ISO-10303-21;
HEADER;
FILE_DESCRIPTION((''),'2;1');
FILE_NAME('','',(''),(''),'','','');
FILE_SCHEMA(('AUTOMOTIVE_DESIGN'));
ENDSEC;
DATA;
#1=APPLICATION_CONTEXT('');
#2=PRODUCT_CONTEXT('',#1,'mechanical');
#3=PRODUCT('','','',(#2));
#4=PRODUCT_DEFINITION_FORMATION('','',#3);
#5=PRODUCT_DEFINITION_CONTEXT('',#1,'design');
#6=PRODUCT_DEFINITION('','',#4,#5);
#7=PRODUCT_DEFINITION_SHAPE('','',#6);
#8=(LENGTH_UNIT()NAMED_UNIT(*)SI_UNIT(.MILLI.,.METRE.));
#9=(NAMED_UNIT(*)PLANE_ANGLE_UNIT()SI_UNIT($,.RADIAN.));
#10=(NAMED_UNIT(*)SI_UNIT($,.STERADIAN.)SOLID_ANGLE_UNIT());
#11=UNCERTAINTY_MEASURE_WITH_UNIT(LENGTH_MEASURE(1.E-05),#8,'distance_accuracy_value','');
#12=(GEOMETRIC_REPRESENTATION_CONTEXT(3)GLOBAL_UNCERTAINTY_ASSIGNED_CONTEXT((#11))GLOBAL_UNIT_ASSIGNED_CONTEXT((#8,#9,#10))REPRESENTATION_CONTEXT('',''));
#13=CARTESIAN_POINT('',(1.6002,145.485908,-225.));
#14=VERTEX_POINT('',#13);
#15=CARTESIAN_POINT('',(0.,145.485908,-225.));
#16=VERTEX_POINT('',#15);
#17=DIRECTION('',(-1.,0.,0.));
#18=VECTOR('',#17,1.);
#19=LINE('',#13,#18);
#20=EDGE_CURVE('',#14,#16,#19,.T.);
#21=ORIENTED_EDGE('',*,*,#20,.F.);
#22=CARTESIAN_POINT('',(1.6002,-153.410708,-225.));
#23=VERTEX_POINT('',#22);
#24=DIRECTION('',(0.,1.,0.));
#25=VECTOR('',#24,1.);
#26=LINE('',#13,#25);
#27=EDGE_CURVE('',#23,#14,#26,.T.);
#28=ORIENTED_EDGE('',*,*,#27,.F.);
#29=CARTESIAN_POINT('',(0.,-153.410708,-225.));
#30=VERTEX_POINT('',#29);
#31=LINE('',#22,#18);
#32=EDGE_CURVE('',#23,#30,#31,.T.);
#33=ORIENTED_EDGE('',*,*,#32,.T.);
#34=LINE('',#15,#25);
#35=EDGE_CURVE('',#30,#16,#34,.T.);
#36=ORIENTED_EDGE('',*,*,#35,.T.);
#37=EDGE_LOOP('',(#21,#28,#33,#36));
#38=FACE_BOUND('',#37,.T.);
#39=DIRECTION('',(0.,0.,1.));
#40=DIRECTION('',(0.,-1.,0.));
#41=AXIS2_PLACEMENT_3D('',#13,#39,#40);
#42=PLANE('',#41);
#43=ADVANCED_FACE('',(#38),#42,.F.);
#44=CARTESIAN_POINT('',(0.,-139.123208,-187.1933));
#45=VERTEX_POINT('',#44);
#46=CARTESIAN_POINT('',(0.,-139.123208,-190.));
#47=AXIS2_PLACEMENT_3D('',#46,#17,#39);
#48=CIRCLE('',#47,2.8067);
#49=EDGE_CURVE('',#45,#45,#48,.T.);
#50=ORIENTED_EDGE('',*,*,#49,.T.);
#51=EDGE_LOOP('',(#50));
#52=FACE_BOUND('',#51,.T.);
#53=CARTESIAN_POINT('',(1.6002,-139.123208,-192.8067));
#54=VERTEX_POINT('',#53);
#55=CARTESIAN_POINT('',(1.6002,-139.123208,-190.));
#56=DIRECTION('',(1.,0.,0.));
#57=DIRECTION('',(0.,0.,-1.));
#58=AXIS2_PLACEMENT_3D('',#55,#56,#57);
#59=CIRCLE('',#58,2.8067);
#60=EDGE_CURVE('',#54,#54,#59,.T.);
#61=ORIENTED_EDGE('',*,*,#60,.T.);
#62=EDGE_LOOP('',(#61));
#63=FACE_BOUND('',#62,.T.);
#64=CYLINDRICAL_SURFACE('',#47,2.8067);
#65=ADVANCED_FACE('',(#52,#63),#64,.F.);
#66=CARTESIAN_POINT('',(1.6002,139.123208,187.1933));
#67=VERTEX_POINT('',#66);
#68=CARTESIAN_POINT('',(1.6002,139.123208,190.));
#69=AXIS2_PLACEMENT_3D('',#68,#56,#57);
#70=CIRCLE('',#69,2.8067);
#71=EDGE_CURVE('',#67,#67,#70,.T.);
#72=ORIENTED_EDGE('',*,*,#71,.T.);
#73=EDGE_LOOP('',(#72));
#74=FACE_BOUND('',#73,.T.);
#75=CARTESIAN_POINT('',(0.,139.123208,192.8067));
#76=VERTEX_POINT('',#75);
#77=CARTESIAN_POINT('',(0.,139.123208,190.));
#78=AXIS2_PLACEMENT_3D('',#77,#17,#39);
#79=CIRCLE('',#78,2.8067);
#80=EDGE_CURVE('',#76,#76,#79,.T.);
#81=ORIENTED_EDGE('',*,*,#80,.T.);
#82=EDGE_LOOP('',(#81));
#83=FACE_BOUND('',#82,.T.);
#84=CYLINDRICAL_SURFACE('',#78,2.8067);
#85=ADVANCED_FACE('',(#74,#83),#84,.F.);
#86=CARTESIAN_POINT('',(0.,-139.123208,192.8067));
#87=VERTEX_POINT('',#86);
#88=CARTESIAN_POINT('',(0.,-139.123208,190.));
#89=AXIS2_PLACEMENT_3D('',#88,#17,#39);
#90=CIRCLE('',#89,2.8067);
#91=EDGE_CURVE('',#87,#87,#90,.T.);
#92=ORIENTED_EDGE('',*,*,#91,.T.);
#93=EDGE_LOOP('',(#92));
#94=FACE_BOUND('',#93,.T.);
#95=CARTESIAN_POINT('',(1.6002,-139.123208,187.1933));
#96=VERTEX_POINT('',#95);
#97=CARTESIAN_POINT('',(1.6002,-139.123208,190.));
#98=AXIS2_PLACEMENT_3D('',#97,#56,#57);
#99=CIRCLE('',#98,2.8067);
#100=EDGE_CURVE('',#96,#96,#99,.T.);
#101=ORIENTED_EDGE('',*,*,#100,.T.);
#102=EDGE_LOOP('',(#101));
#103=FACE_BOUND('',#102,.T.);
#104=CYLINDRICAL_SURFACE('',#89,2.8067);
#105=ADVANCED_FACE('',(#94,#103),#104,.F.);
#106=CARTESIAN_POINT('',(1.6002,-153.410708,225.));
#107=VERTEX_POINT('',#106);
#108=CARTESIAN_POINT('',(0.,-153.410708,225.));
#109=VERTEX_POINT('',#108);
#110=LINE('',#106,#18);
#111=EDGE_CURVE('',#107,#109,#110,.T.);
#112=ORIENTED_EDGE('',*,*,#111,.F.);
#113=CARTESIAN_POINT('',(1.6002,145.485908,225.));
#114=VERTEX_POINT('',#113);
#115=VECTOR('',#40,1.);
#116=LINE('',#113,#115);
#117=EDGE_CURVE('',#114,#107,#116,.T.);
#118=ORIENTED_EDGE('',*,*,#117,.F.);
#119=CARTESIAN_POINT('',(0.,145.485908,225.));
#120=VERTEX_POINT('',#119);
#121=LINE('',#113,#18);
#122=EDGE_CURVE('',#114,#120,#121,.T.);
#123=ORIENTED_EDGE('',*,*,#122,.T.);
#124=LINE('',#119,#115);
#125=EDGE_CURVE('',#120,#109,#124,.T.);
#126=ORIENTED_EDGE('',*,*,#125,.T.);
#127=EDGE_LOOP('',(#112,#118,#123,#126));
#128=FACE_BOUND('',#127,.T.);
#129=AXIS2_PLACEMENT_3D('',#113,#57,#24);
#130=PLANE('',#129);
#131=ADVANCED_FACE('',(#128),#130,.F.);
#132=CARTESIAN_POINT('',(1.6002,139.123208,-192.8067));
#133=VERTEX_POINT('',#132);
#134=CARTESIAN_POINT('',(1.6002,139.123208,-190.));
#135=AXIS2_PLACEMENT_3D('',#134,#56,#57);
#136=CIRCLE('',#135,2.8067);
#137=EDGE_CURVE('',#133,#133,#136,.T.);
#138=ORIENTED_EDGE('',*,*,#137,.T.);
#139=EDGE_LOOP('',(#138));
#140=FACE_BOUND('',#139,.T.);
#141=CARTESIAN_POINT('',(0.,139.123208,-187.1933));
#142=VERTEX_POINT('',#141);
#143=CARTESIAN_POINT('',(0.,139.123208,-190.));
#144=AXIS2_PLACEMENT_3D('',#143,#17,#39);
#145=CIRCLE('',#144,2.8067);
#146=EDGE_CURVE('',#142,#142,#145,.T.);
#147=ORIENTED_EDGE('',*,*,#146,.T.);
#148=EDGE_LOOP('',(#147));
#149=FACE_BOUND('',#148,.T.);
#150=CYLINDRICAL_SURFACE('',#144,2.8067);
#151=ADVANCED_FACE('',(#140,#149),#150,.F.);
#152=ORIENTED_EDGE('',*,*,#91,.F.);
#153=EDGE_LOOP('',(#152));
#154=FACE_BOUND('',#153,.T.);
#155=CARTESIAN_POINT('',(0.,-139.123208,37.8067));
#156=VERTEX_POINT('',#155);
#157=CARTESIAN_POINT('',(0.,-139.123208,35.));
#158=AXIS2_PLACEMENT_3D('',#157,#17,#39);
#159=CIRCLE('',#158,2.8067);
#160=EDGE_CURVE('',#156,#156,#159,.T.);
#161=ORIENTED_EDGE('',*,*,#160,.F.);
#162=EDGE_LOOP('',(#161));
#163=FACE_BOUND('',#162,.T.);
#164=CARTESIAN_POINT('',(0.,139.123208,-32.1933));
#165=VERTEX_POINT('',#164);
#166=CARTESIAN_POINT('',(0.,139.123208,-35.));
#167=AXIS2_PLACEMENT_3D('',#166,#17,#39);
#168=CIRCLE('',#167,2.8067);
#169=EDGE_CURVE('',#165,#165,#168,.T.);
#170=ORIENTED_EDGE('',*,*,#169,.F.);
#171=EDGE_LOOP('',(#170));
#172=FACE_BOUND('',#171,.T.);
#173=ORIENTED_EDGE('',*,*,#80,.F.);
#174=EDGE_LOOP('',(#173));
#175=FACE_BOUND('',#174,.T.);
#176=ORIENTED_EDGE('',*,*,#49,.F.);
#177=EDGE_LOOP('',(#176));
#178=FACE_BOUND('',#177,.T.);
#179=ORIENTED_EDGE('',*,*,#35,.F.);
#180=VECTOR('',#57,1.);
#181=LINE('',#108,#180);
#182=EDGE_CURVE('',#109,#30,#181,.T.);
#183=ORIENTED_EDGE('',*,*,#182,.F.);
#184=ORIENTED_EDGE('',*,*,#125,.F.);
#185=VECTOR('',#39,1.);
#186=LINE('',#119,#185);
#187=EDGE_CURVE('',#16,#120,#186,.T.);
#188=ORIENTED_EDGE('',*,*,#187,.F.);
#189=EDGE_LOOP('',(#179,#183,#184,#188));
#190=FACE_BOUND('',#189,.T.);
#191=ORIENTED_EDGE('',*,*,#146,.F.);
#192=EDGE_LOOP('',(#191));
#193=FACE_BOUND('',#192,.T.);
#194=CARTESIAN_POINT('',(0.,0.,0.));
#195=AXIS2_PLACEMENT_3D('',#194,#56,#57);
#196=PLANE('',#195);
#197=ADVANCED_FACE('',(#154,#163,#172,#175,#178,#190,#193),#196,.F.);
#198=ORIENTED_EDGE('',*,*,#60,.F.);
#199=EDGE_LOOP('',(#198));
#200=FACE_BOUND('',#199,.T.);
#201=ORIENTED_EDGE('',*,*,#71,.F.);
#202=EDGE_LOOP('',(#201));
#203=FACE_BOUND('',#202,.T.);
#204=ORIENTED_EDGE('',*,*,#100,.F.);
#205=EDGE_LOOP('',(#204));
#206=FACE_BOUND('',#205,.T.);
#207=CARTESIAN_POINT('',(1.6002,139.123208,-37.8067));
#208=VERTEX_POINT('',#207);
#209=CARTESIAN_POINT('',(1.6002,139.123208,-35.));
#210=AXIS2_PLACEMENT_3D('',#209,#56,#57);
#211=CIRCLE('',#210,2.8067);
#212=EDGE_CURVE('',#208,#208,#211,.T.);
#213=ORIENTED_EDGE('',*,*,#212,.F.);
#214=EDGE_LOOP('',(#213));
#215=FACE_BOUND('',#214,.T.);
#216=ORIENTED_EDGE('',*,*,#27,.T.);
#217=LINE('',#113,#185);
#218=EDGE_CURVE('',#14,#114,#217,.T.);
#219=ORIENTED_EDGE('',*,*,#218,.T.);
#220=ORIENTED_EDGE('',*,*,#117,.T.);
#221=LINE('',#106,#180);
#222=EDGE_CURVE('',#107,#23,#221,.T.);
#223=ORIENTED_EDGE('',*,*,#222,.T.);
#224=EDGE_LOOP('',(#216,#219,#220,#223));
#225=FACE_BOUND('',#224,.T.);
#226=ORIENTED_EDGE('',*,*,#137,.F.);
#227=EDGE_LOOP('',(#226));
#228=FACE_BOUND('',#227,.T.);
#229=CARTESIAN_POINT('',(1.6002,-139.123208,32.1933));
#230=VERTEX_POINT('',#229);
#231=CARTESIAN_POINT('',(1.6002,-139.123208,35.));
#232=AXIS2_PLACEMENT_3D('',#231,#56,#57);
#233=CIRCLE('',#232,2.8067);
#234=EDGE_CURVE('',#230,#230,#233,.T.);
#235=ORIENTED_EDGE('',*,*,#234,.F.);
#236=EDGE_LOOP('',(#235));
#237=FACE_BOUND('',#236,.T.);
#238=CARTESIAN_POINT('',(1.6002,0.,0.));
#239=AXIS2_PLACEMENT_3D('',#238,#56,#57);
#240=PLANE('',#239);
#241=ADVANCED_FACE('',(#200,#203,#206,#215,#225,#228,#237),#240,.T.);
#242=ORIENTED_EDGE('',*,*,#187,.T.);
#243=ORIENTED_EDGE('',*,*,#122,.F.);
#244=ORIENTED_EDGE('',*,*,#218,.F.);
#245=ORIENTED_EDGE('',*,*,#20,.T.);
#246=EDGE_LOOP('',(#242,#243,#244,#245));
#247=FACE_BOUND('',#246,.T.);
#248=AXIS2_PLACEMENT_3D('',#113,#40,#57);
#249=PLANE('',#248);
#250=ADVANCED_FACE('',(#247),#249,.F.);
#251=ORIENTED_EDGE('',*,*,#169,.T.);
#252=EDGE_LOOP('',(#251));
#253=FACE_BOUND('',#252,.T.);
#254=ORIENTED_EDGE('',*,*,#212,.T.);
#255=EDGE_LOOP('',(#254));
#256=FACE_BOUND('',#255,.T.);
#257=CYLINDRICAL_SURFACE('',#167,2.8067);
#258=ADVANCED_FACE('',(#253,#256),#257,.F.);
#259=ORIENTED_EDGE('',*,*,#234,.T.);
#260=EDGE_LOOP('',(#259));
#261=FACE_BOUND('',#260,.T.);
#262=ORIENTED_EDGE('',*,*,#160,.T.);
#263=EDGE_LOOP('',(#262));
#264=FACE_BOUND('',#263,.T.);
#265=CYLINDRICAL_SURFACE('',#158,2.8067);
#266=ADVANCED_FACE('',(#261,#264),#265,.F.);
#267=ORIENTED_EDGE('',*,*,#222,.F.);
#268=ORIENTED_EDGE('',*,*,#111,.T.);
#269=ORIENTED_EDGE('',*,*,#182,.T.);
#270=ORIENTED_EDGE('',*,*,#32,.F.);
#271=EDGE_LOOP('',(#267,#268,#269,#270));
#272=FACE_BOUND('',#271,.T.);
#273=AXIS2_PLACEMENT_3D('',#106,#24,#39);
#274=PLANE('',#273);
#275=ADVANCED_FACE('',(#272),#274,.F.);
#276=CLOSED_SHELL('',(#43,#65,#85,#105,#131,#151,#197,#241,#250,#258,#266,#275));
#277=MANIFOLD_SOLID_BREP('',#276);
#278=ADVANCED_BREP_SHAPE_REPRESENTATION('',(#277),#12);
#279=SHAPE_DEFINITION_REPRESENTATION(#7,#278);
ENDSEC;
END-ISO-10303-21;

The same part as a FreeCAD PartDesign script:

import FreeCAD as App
import Part
import Sketcher

V = App.Vector
Q = App.Units.Quantity


def add_polygon(sketch, points):
    """Adds a closed chain of lines whose ends are joined by coincident constraints."""
    first, n = sketch.GeometryCount, len(points)
    for a, b in zip(points, points[1:] + points[:1]):
        sketch.addGeometry(Part.LineSegment(App.Vector(*a, 0), App.Vector(*b, 0)), False)
    for i in range(n):
        sketch.addConstraint(Sketcher.Constraint("Coincident", first + i, 2, first + (i + 1) % n, 1))

doc = App.newDocument("Part")
params = doc.addObject("Spreadsheet::Sheet", "Params")
for row, (alias, value) in enumerate([
    ("sketch1_height", "450 mm"),
    ("pad1_length", "1.6002 mm"),
    ("hole_diameter", "5.6134 mm"),
    ("hole_depth", "20 mm"),
], start=1):
    params.set(f"A{row}", alias)
    params.set(f"B{row}", "=" + value)
    params.setAlias(f"B{row}", alias)

body = doc.addObject("PartDesign::Body", "Body")

sketch1 = doc.addObject("Sketcher::SketchObject", "Sketch")
body.addObject(sketch1)
sketch1.AttachmentSupport = (doc.YZ_Plane, [""])
sketch1.MapMode = "FlatFace"
add_polygon(sketch1, [(145.485908, 225), (-153.410708, 225), (-153.410708, -225), (145.485908, -225)])
sketch1.addConstraint(Sketcher.Constraint("Horizontal", 0))
sketch1.addConstraint(Sketcher.Constraint("Vertical", 1))
sketch1.addConstraint(Sketcher.Constraint("Horizontal", 2))
sketch1.addConstraint(Sketcher.Constraint("Vertical", 3))
sketch1.addConstraint(Sketcher.Constraint("DistanceY", 1, 2, 1, 1, Q("450 mm")))
sketch1.addConstraint(Sketcher.Constraint("DistanceY", -1, 1, 0, 2, Q("225 mm")))
sketch1.addConstraint(Sketcher.Constraint("DistanceX", 0, 2, 0, 1, Q("298.896617 mm")))
sketch1.addConstraint(Sketcher.Constraint("DistanceX", 0, 2, -1, 1, Q("153.410708 mm")))
sketch1.setExpression("Constraints[8]", "Params.sketch1_height")
pad1 = doc.addObject("PartDesign::Pad", "Pad")
body.addObject(pad1)
pad1.Profile = sketch1
pad1.setExpression("Length", "Params.pad1_length")

sketch2 = doc.addObject("Sketcher::SketchObject", "Sketch001")
body.addObject(sketch2)
sketch2.AttachmentSupport = (doc.YZ_Plane, [""])
sketch2.MapMode = "FlatFace"
sketch2.addGeometry(Part.Circle(V(139.123208, -190, 0), V(0, 0, 1), 2.8067), False)
sketch2.addGeometry(Part.Circle(V(139.123208, -35, 0), V(0, 0, 1), 2.8067), False)
sketch2.addGeometry(Part.Circle(V(139.123208, 190, 0), V(0, 0, 1), 2.8067), False)
sketch2.addGeometry(Part.Circle(V(-139.123208, 190, 0), V(0, 0, 1), 2.8067), False)
sketch2.addGeometry(Part.Circle(V(-139.123208, 35, 0), V(0, 0, 1), 2.8067), False)
sketch2.addGeometry(Part.Circle(V(-139.123208, -190, 0), V(0, 0, 1), 2.8067), False)
sketch2.addConstraint(Sketcher.Constraint("Equal", 0, 1))
sketch2.addConstraint(Sketcher.Constraint("Equal", 1, 2))
sketch2.addConstraint(Sketcher.Constraint("Equal", 2, 3))
sketch2.addConstraint(Sketcher.Constraint("Equal", 3, 4))
sketch2.addConstraint(Sketcher.Constraint("Equal", 4, 5))
sketch2.addConstraint(Sketcher.Constraint("Symmetric", 0, 3, 3, 3, -1, 1))
sketch2.addConstraint(Sketcher.Constraint("Symmetric", 1, 3, 4, 3, -1, 1))
sketch2.addConstraint(Sketcher.Constraint("Symmetric", 2, 3, 5, 3, -1, 1))
sketch2.addConstraint(Sketcher.Constraint("Symmetric", 2, 3, 3, 3, -2))
sketch2.addConstraint(Sketcher.Constraint("Vertical", 0, 3, 1, 3))
sketch2.addConstraint(Sketcher.Constraint("DistanceY", 0, 3, -1, 1, Q("190 mm")))
sketch2.addConstraint(Sketcher.Constraint("DistanceY", 1, 3, -1, 1, Q("35 mm")))
sketch2.addConstraint(Sketcher.Constraint("Diameter", 0, Q("5.6134 mm")))
sketch2.addConstraint(Sketcher.Constraint("DistanceX", -1, 1, 0, 3, Q("139.123208 mm")))
doc.recompute()
hole = doc.addObject("PartDesign::Hole", "Hole")
body.addObject(hole)
hole.Profile = sketch2
hole.ThreadType = "None"
hole.setExpression("Diameter", "Params.hole_diameter")
hole.DepthType = "Dimension"
hole.setExpression("Depth", "Params.hole_depth")
hole.DrillPoint = "Angled"
hole.DrillPointAngle = 118
hole.Reversed = True

doc.recompute()
